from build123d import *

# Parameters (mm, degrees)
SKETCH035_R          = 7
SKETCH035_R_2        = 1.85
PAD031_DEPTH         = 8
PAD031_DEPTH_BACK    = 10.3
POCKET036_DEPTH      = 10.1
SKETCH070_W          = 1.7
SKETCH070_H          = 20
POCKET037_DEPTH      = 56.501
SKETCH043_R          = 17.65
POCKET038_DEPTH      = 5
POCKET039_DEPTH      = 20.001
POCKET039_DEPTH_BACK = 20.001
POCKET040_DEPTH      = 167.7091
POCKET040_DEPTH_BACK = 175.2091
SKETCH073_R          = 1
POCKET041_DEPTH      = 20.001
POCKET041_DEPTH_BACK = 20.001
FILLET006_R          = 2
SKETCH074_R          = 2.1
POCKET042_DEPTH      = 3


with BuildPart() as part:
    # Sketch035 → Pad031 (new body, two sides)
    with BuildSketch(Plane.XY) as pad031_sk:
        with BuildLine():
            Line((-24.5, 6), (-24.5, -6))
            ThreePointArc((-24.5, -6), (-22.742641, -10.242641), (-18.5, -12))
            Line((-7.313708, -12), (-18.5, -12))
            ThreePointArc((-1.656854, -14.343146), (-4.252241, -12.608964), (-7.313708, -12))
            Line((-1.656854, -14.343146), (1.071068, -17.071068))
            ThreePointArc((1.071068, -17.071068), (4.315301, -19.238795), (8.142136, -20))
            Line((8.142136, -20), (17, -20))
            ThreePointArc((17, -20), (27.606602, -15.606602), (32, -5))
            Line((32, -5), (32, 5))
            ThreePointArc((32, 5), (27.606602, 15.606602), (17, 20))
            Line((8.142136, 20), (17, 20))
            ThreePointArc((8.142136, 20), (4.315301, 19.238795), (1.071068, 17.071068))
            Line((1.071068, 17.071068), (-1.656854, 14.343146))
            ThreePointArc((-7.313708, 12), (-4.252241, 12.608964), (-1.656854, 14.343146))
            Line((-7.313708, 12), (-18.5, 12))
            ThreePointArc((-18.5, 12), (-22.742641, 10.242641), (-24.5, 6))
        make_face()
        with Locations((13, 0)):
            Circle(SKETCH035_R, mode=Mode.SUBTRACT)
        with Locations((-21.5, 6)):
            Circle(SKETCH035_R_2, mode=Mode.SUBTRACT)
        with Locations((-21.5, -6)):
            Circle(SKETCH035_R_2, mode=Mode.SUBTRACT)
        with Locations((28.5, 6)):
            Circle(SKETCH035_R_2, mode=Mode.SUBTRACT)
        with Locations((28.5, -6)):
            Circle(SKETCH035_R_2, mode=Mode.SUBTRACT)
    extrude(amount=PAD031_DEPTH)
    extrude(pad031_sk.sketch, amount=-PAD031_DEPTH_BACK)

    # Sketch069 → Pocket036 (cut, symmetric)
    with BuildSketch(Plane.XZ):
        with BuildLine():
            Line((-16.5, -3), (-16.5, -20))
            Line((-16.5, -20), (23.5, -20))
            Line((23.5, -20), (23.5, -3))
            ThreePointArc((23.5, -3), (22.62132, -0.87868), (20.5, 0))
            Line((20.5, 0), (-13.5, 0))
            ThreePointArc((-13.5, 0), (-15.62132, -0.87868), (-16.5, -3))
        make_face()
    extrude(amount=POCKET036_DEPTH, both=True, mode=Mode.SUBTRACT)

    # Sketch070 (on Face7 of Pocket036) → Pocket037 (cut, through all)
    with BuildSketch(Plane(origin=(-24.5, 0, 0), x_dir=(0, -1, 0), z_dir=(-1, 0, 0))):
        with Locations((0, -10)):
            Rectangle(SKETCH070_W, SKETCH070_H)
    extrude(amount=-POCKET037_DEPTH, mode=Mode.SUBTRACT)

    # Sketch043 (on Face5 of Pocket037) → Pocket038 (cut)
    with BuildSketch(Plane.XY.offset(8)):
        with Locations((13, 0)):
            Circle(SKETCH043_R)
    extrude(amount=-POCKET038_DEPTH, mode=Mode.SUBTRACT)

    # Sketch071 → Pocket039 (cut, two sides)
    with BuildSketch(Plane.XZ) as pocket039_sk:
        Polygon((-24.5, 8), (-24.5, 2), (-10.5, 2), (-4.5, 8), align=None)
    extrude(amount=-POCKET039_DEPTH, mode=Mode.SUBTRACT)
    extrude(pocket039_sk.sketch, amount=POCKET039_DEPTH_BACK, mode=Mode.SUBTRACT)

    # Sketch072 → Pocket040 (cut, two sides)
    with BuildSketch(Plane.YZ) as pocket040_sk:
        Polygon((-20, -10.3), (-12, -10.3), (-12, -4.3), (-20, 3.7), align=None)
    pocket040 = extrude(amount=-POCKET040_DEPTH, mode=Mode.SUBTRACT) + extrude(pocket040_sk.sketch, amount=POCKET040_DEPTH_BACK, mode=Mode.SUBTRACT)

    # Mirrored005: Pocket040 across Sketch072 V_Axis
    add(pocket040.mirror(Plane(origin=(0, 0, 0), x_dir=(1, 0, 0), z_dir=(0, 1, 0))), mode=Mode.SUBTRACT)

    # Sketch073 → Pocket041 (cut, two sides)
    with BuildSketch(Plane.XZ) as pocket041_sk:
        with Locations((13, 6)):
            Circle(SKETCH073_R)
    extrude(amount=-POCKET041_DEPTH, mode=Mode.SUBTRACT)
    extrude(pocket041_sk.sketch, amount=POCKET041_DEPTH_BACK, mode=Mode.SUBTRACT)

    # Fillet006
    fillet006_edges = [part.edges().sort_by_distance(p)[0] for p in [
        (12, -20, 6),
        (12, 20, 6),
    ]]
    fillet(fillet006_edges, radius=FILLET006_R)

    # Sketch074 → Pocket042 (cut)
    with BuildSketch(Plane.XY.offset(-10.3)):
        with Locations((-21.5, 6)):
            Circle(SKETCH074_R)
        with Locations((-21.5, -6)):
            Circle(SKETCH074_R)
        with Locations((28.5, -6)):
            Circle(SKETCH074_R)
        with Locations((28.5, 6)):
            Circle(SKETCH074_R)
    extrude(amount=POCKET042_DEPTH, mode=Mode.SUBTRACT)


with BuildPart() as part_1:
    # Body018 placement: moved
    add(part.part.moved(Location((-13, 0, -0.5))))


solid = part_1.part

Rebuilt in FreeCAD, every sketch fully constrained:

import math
import FreeCAD as App
import Part
import Sketcher

V = App.Vector
Q = App.Units.Quantity


def edges_at(feature, points):
    """Names of the edges that pass closest to the given points."""
    edges = feature.Shape.Edges
    near = lambda p: min(range(len(edges)), key=lambda i: edges[i].distToShape(Part.Vertex(*p))[0])
    return sorted({f"Edge{near(p) + 1}" for p in points})


def add_polygon(sketch, points):
    """Adds a closed chain of lines whose ends are joined by coincident constraints."""
    first, n = sketch.GeometryCount, len(points)
    for a, b in zip(points, points[1:] + points[:1]):
        sketch.addGeometry(Part.LineSegment(App.Vector(*a, 0), App.Vector(*b, 0)), False)
    for i in range(n):
        sketch.addConstraint(Sketcher.Constraint("Coincident", first + i, 2, first + (i + 1) % n, 1))

doc = App.newDocument("Part")
body = doc.addObject("PartDesign::Body", "Body")

# Sketch on XY plane
sketch1 = body.newObject("Sketcher::SketchObject", "Sketch")
sketch1.AttachmentSupport = (doc.getObject("XY_Plane"), [""])
sketch1.MapMode = "FlatFace"
sketch1.addGeometry([
    Part.LineSegment(V(-24.5, 6, 0), V(-24.5, -6, 0)),  # 0
    Part.ArcOfCircle(Part.Circle(V(-18.500001, -6.000001, 0), V(0, 0, 1), 5.999999), math.radians(179.99999), math.radians(270.00001)),  # 1
    Part.LineSegment(V(-18.5, -12, 0), V(-7.313708, -12, 0)),  # 2
    Part.ArcOfCircle(Part.Circle(V(-7.31371, -20.000003, 0), V(0, 0, 1), 8.000003), math.radians(45.000006), math.radians(89.999988)),  # 3
    Part.LineSegment(V(-1.656854, -14.343146, 0), V(1.071068, -17.071068, 0)),  # 4
    Part.ArcOfCircle(Part.Circle(V(8.142137, -9.999998, 0), V(0, 0, 1), 10.000002), math.radians(-134.999993), math.radians(-90.000003)),  # 5
    Part.LineSegment(V(8.142136, -20, 0), V(17, -20, 0)),  # 6
    Part.ArcOfCircle(Part.Circle(V(17.000001, -5.000001, 0), V(0, 0, 1), 14.999999), math.radians(-90.000004), math.radians(0.000004)),  # 7
    Part.LineSegment(V(32, -5, 0), V(32, 5, 0)),  # 8
    Part.ArcOfCircle(Part.Circle(V(17.000001, 5.000001, 0), V(0, 0, 1), 14.999999), math.radians(-0.000004), math.radians(90.000004)),  # 9
    Part.LineSegment(V(17, 20, 0), V(8.142136, 20, 0)),  # 10
    Part.ArcOfCircle(Part.Circle(V(8.142137, 9.999998, 0), V(0, 0, 1), 10.000002), math.radians(90.000003), math.radians(134.999993)),  # 11
    Part.LineSegment(V(1.071068, 17.071068, 0), V(-1.656854, 14.343146, 0)),  # 12
    Part.ArcOfCircle(Part.Circle(V(-7.31371, 20.000003, 0), V(0, 0, 1), 8.000003), math.radians(-89.999988), math.radians(-45.000006)),  # 13
    Part.LineSegment(V(-7.313708, 12, 0), V(-18.5, 12, 0)),  # 14
    Part.ArcOfCircle(Part.Circle(V(-18.500001, 6.000001, 0), V(0, 0, 1), 5.999999), math.radians(89.99999), math.radians(180.00001)),  # 15
    Part.Circle(V(-21.5, -6, 0), V(0, 0, 1), 1.85),  # 16
    Part.Circle(V(28.5, -6, 0), V(0, 0, 1), 1.85),  # 17
    Part.Circle(V(-21.5, 6, 0), V(0, 0, 1), 1.85),  # 18
    Part.Circle(V(13, 0, 0), V(0, 0, 1), 7),  # 19
    Part.Circle(V(28.5, 6, 0), V(0, 0, 1), 1.85),  # 20
], False)
sketch1.addConstraint([
    Sketcher.Constraint("Tangent", 0, 2, 1, 1),
    Sketcher.Constraint("Tangent", 1, 2, 2, 1),
    Sketcher.Constraint("Tangent", 2, 2, 3, 2),
    Sketcher.Constraint("Tangent", 3, 1, 4, 1),
    Sketcher.Constraint("Tangent", 4, 2, 5, 1),
    Sketcher.Constraint("Tangent", 5, 2, 6, 1),
    Sketcher.Constraint("Tangent", 6, 2, 7, 1),
    Sketcher.Constraint("Tangent", 7, 2, 8, 1),
    Sketcher.Constraint("Tangent", 8, 2, 9, 1),
    Sketcher.Constraint("Tangent", 9, 2, 10, 1),
    Sketcher.Constraint("Tangent", 10, 2, 11, 1),
    Sketcher.Constraint("Tangent", 11, 2, 12, 1),
    Sketcher.Constraint("Tangent", 12, 2, 13, 2),
    Sketcher.Constraint("Tangent", 13, 1, 14, 1),
    Sketcher.Constraint("Tangent", 14, 2, 15, 1),
    Sketcher.Constraint("Tangent", 15, 2, 0, 1),
    Sketcher.Constraint("Vertical", 0),
    Sketcher.Constraint("Horizontal", 2),
    Sketcher.Constraint("Horizontal", 6),
    Sketcher.Constraint("Vertical", 8),
    Sketcher.Constraint("Horizontal", 10),
    Sketcher.Constraint("Horizontal", 14),
    Sketcher.Constraint("Equal", 7, 9),
    Sketcher.Constraint("Equal", 5, 11),
    Sketcher.Constraint("Equal", 3, 13),
    Sketcher.Constraint("Equal", 1, 15),
    Sketcher.Constraint("Equal", 16, 17),
    Sketcher.Constraint("Equal", 17, 18),
    Sketcher.Constraint("Equal", 18, 20),
    Sketcher.Constraint("Symmetric", 5, 3, 11, 3, -1),
    Sketcher.Constraint("Symmetric", 3, 3, 13, 3, -1),
    Sketcher.Constraint("Symmetric", 16, 3, 18, 3, -1),
    Sketcher.Constraint("Symmetric", 17, 3, 20, 3, -1),
    Sketcher.Constraint("PointOnObject", 19, 3, -1),
    Sketcher.Constraint("Perpendicular", 4, 12),
    Sketcher.Constraint("Horizontal", 1, 3, 16, 3),
    Sketcher.Constraint("Horizontal", 16, 3, 17, 3),
    Sketcher.Constraint("Diameter", 19, Q("14 mm")),
    Sketcher.Constraint("Radius", 1, Q("5.999999 mm")),
    Sketcher.Constraint("Radius", 7, Q("14.999999 mm")),
    Sketcher.Constraint("Diameter", 16, Q("3.7 mm")),
    Sketcher.Constraint("DistanceY", 0, 2, 0, 1, Q("12 mm")),
    Sketcher.Constraint("DistanceY", 8, 1, 8, 2, Q("10 mm")),
    Sketcher.Constraint("DistanceX", -1, 1, 7, 3, Q("17.000001 mm")),
    Sketcher.Constraint("DistanceX", -1, 1, 19, 3, Q("13 mm")),
    Sketcher.Constraint("DistanceY", 3, 3, 1, 3, Q("14.000002 mm")),
    Sketcher.Constraint("DistanceY", 5, 3, 9, 3, Q("14.999999 mm")),
    Sketcher.Constraint("DistanceX", 16, 3, 1, 3, Q("2.999999 mm")),
    Sketcher.Constraint("DistanceX", 1, 3, -1, 1, Q("18.500001 mm")),
    Sketcher.Constraint("DistanceX", -1, 1, 17, 3, Q("28.5 mm")),
    Sketcher.Constraint("DistanceX", 2, 1, 2, 2, Q("11.186292 mm")),
])
pad1 = body.newObject("PartDesign::Pad", "Pad")
pad1.Profile = sketch1
pad1.Type = "TwoLengths"
pad1.Length = 8
pad1.Length2 = 10.3

# Sketch on XZ plane
sketch2 = body.newObject("Sketcher::SketchObject", "Sketch001")
sketch2.AttachmentSupport = (doc.getObject("XZ_Plane"), [""])
sketch2.MapMode = "FlatFace"
sketch2.addGeometry([
    Part.LineSegment(V(-16.5, -3, 0), V(-16.5, -20, 0)),  # 0
    Part.LineSegment(V(-16.5, -20, 0), V(23.5, -20, 0)),  # 1
    Part.LineSegment(V(23.5, -20, 0), V(23.5, -3, 0)),  # 2
    Part.ArcOfCircle(Part.Circle(V(20.499999, -3.000001, 0), V(0, 0, 1), 3.000001), math.radians(0.000022), math.radians(89.999978)),  # 3
    Part.LineSegment(V(20.5, 0, 0), V(-13.5, 0, 0)),  # 4
    Part.ArcOfCircle(Part.Circle(V(-13.499999, -3.000001, 0), V(0, 0, 1), 3.000001), math.radians(90.000022), math.radians(179.999978)),  # 5
], False)
sketch2.addConstraint([
    Sketcher.Constraint("Coincident", 0, 2, 1, 1),
    Sketcher.Constraint("Coincident", 1, 2, 2, 1),
    Sketcher.Constraint("Tangent", 2, 2, 3, 1),
    Sketcher.Constraint("Tangent", 3, 2, 4, 1),
    Sketcher.Constraint("Tangent", 4, 2, 5, 1),
    Sketcher.Constraint("Tangent", 5, 2, 0, 1),
    Sketcher.Constraint("Vertical", 0),
    Sketcher.Constraint("Horizontal", 1),
    Sketcher.Constraint("Vertical", 2),
    Sketcher.Constraint("Horizontal", 4),
    Sketcher.Constraint("Equal", 3, 5),
    Sketcher.Constraint("PointOnObject", 3, 2, -1),
    Sketcher.Constraint("Radius", 3, Q("3.000001 mm")),
    Sketcher.Constraint("DistanceX", 1, 1, 1, 2, Q("40 mm")),
    Sketcher.Constraint("DistanceY", 0, 2, 0, 1, Q("17 mm")),
    Sketcher.Constraint("DistanceX", -1, 1, 3, 3, Q("20.499999 mm")),
])
pocket1 = body.newObject("PartDesign::Pocket", "Pocket")
pocket1.Profile = sketch2
pocket1.Length = 20.2
pocket1.Midplane = True

# Sketch on YZ plane
sketch3 = body.newObject("Sketcher::SketchObject", "Sketch002")
sketch3.AttachmentSupport = (doc.getObject("YZ_Plane"), [""])
sketch3.MapMode = "FlatFace"
sketch3.AttachmentOffset = App.Placement(V(0, 0, -24.5), App.Rotation())
add_polygon(sketch3, [(0.85, 0), (0.85, -20), (-0.85, -20), (-0.85, 0)])  # lines 0-3
sketch3.addConstraint([
    Sketcher.Constraint("Vertical", 0),
    Sketcher.Constraint("Horizontal", 1),
    Sketcher.Constraint("Vertical", 2),
    Sketcher.Constraint("Horizontal", 3),
    Sketcher.Constraint("Symmetric", 2, 2, 3, 2, -1, 1),
    Sketcher.Constraint("DistanceY", 0, 2, 0, 1, Q("20 mm")),
    Sketcher.Constraint("DistanceX", 1, 2, 1, 1, Q("1.7 mm")),
])
pocket2 = body.newObject("PartDesign::Pocket", "Pocket001")
pocket2.Profile = sketch3
pocket2.Type = "ThroughAll"
pocket2.Reversed = True

# Sketch on XY plane
sketch4 = body.newObject("Sketcher::SketchObject", "Sketch003")
sketch4.AttachmentSupport = (doc.getObject("XY_Plane"), [""])
sketch4.MapMode = "FlatFace"
sketch4.AttachmentOffset = App.Placement(V(0, 0, 8), App.Rotation())
sketch4.addGeometry(Part.Circle(V(13, 0, 0), V(0, 0, 1), 17.65), False)
sketch4.addConstraint([
    Sketcher.Constraint("PointOnObject", 0, 3, -1),
    Sketcher.Constraint("Diameter", 0, Q("35.3 mm")),
    Sketcher.Constraint("DistanceX", -1, 1, 0, 3, Q("13 mm")),
])
pocket3 = body.newObject("PartDesign::Pocket", "Pocket002")
pocket3.Profile = sketch4
pocket3.Length = 5

# Sketch on XZ plane
sketch5 = body.newObject("Sketcher::SketchObject", "Sketch004")
sketch5.AttachmentSupport = (doc.getObject("XZ_Plane"), [""])
sketch5.MapMode = "FlatFace"
add_polygon(sketch5, [(-24.5, 8), (-24.5, 2), (-10.5, 2), (-4.5, 8)])  # lines 0-3
sketch5.addConstraint([
    Sketcher.Constraint("Vertical", 0),
    Sketcher.Constraint("Horizontal", 1),
    Sketcher.Constraint("Horizontal", 3),
    Sketcher.Constraint("DistanceX", 1, 1, 1, 2, Q("14 mm")),
    Sketcher.Constraint("DistanceX", 3, 2, 3, 1, Q("20 mm")),
    Sketcher.Constraint("DistanceY", 0, 2, 0, 1, Q("6 mm")),
    Sketcher.Constraint("DistanceY", -1, 1, 0, 2, Q("2 mm")),
    Sketcher.Constraint("DistanceX", 0, 2, -1, 1, Q("24.5 mm")),
])
pocket4 = body.newObject("PartDesign::Pocket", "Pocket003")
pocket4.Profile = sketch5
pocket4.Type = "ThroughAll"
pocket4.Midplane = True

# Sketch on YZ plane
sketch6 = body.newObject("Sketcher::SketchObject", "Sketch005")
sketch6.AttachmentSupport = (doc.getObject("YZ_Plane"), [""])
sketch6.MapMode = "FlatFace"
add_polygon(sketch6, [(-20, -10.3), (-12, -10.3), (-12, -4.3), (-20, 3.7)])  # lines 0-3
sketch6.addConstraint([
    Sketcher.Constraint("Horizontal", 0),
    Sketcher.Constraint("Vertical", 1),
    Sketcher.Constraint("Vertical", 3),
    Sketcher.Constraint("DistanceX", 0, 1, 0, 2, Q("8 mm")),
    Sketcher.Constraint("DistanceY", 1, 1, 1, 2, Q("6 mm")),
    Sketcher.Constraint("DistanceY", 3, 2, 3, 1, Q("14 mm")),
    Sketcher.Constraint("DistanceX", 0, 2, -1, 1, Q("12 mm")),
    Sketcher.Constraint("DistanceY", 0, 2, -1, 1, Q("10.3 mm")),
])
pocket5 = body.newObject("PartDesign::Pocket", "Pocket004")
pocket5.Profile = sketch6
pocket5.Type = "ThroughAll"
pocket5.Midplane = True
doc.recompute()

mirrored = body.newObject("PartDesign::Mirrored", "Mirrored")
mirrored.Originals = [pocket5]
mirrored.MirrorPlane = (doc.getObject("XZ_Plane"), [""])
body.Tip = mirrored

# Sketch on XZ plane
sketch7 = body.newObject("Sketcher::SketchObject", "Sketch006")
sketch7.AttachmentSupport = (doc.getObject("XZ_Plane"), [""])
sketch7.MapMode = "FlatFace"
sketch7.addGeometry(Part.Circle(V(13, 6, 0), V(0, 0, 1), 1), False)
sketch7.addConstraint([
    Sketcher.Constraint("Diameter", 0, Q("2 mm")),
    Sketcher.Constraint("DistanceX", -1, 1, 0, 3, Q("13 mm")),
    Sketcher.Constraint("DistanceY", -1, 1, 0, 3, Q("6 mm")),
])
pocket6 = body.newObject("PartDesign::Pocket", "Pocket005")
pocket6.Profile = sketch7
pocket6.Type = "ThroughAll"
pocket6.Midplane = True
doc.recompute()

fillet = body.newObject("PartDesign::Fillet", "Fillet")
fillet.Base = (pocket6, edges_at(pocket6, [(12, -20, 6), (12, 20, 6)]))
fillet.Radius = 2

# Sketch on XY plane
sketch8 = body.newObject("Sketcher::SketchObject", "Sketch007")
sketch8.AttachmentSupport = (doc.getObject("XY_Plane"), [""])
sketch8.MapMode = "FlatFace"
sketch8.AttachmentOffset = App.Placement(V(0, 0, -10.3), App.Rotation())
sketch8.addGeometry([
    Part.Circle(V(-21.5, 6, 0), V(0, 0, 1), 2.1),
    Part.Circle(V(-21.5, -6, 0), V(0, 0, 1), 2.1),
    Part.Circle(V(28.5, -6, 0), V(0, 0, 1), 2.1),
    Part.Circle(V(28.5, 6, 0), V(0, 0, 1), 2.1),
], False)
sketch8.addConstraint([
    Sketcher.Constraint("Equal", 0, 1),
    Sketcher.Constraint("Equal", 1, 2),
    Sketcher.Constraint("Equal", 2, 3),
    Sketcher.Constraint("Symmetric", 0, 3, 1, 3, -1),
    Sketcher.Constraint("Symmetric", 2, 3, 3, 3, -1),
    Sketcher.Constraint("Horizontal", 1, 3, 2, 3),
    Sketcher.Constraint("Diameter", 0, Q("4.2 mm")),
    Sketcher.Constraint("DistanceY", -1, 1, 0, 3, Q("6 mm")),
    Sketcher.Constraint("DistanceX", 1, 3, 2, 3, Q("50 mm")),
    Sketcher.Constraint("DistanceX", 0, 3, -1, 1, Q("21.5 mm")),
])
pocket7 = body.newObject("PartDesign::Pocket", "Pocket006")
pocket7.Profile = sketch8
pocket7.Length = 3
pocket7.Reversed = True
body2 = doc.addObject("PartDesign::Body", "Body001")
doc.recompute()

body.Placement = App.Placement(V(-13, 0, -0.5), App.Rotation(V(0, 0, 1), 0))
boolean = body2.newObject("PartDesign::Boolean", "Boolean")
boolean.Type = "Fuse"
boolean.addObjects([body])

doc.recompute()
